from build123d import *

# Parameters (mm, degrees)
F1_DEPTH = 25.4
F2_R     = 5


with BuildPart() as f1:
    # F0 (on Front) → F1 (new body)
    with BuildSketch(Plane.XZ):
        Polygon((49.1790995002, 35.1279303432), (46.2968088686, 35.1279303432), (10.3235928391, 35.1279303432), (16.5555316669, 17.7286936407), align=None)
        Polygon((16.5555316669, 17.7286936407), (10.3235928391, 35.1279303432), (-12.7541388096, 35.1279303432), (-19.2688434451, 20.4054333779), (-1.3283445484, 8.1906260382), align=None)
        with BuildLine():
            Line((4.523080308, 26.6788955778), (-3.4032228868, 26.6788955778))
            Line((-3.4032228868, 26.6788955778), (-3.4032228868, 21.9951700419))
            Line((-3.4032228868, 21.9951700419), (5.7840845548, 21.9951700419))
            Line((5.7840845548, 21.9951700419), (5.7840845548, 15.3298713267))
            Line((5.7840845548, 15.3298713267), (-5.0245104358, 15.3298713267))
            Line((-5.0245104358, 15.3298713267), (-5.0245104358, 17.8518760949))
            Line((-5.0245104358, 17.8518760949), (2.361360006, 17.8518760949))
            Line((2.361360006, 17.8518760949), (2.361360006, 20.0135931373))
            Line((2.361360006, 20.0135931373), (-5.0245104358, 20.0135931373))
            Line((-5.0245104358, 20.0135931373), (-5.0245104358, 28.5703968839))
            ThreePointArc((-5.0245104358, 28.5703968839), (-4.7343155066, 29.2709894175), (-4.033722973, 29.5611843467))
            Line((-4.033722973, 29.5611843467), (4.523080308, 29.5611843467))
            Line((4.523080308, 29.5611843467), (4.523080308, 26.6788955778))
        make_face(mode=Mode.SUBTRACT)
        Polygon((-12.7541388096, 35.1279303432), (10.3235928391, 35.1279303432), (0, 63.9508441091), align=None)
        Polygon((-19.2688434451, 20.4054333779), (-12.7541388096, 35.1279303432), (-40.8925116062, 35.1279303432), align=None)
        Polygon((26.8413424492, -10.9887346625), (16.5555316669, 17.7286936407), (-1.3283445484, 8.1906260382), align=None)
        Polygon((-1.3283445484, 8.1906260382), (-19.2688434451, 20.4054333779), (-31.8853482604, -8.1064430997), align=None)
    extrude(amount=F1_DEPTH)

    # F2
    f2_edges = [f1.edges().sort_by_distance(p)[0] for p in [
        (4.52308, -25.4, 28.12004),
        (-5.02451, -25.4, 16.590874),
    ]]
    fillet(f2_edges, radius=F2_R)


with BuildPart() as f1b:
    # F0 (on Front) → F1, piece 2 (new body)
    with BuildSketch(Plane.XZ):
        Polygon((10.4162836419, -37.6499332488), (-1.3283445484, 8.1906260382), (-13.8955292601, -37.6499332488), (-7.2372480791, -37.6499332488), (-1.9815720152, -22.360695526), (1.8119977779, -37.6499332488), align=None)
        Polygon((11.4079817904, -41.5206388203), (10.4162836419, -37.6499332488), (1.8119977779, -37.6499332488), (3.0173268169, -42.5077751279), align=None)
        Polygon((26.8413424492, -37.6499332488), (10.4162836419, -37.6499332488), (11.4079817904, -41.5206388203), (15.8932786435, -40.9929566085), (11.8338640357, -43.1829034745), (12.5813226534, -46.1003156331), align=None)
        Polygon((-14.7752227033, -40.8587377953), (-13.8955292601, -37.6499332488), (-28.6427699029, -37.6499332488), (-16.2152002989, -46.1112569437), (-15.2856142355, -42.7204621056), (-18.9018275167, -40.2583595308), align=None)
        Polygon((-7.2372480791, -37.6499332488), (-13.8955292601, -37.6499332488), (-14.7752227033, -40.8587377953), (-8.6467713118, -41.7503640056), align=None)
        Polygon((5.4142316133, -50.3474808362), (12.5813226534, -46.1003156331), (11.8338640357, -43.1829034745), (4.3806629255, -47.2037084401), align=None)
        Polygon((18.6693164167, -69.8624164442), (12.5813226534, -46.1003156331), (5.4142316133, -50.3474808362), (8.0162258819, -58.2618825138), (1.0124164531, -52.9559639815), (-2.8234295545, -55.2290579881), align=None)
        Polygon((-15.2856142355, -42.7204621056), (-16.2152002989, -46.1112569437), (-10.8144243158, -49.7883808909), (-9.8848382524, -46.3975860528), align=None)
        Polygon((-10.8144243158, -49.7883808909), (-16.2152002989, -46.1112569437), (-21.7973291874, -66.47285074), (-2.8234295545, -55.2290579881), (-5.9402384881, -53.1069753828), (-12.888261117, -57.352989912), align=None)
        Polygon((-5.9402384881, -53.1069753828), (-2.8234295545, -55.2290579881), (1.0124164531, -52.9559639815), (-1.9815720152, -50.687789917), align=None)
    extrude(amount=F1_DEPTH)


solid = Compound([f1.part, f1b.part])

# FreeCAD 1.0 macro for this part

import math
import FreeCAD as App
import Part
import Sketcher


def edges_at(feature, points):
    """Names of the edges that pass closest to the given points."""
    edges = feature.Shape.Edges
    near = lambda p: min(range(len(edges)), key=lambda i: edges[i].distToShape(Part.Vertex(*p))[0])
    return sorted({f"Edge{near(p) + 1}" for p in points})

doc = App.newDocument("Part")
params = doc.addObject("Spreadsheet::Sheet", "Params")
for row, (alias, value) in enumerate([
    ("pad1_length", "25.4 mm"),
    ("fillet_radius", "5 mm"),
    ("pad2_length", "25.4 mm"),
], start=1):
    params.set(f"A{row}", alias)
    params.set(f"B{row}", "=" + value)
    params.setAlias(f"B{row}", alias)

body = doc.addObject("PartDesign::Body", "Body")

# Sketch on XZ plane
sketch1 = doc.addObject("Sketcher::SketchObject", "Sketch")
body.addObject(sketch1)
sketch1.AttachmentSupport = (doc.XZ_Plane, [""])
sketch1.MapMode = "FlatFace"
sketch1.addGeometry(Part.LineSegment(App.Vector(49.179099, 35.12793, 0), App.Vector(10.323593, 35.12793, 0)), False)
sketch1.addGeometry(Part.LineSegment(App.Vector(10.323593, 35.12793, 0), App.Vector(0, 63.950844, 0)), False)
sketch1.addGeometry(Part.LineSegment(App.Vector(0, 63.950844, 0), App.Vector(-12.754139, 35.12793, 0)), False)
sketch1.addGeometry(Part.LineSegment(App.Vector(-12.754139, 35.12793, 0), App.Vector(-40.892512, 35.12793, 0)), False)
sketch1.addGeometry(Part.LineSegment(App.Vector(-40.892512, 35.12793, 0), App.Vector(-19.268843, 20.405433, 0)), False)
sketch1.addGeometry(Part.LineSegment(App.Vector(-19.268843, 20.405433, 0), App.Vector(-31.885348, -8.106443, 0)), False)
sketch1.addGeometry(Part.LineSegment(App.Vector(-31.885348, -8.106443, 0), App.Vector(-1.328345, 8.190626, 0)), False)
sketch1.addGeometry(Part.LineSegment(App.Vector(-1.328345, 8.190626, 0), App.Vector(26.841342, -10.988735, 0)), False)
sketch1.addGeometry(Part.LineSegment(App.Vector(26.841342, -10.988735, 0), App.Vector(16.555532, 17.728694, 0)), False)
sketch1.addGeometry(Part.LineSegment(App.Vector(16.555532, 17.728694, 0), App.Vector(49.179099, 35.12793, 0)), False)
sketch1.addGeometry(Part.LineSegment(App.Vector(4.52308, 29.561184, 0), App.Vector(4.52308, 26.678896, 0)), False)
sketch1.addGeometry(Part.LineSegment(App.Vector(4.52308, 26.678896, 0), App.Vector(-3.403223, 26.678896, 0)), False)
sketch1.addGeometry(Part.LineSegment(App.Vector(-3.403223, 26.678896, 0), App.Vector(-3.403223, 21.99517, 0)), False)
sketch1.addGeometry(Part.LineSegment(App.Vector(-3.403223, 21.99517, 0), App.Vector(5.784085, 21.99517, 0)), False)
sketch1.addGeometry(Part.LineSegment(App.Vector(5.784085, 21.99517, 0), App.Vector(5.784085, 15.329871, 0)), False)
sketch1.addGeometry(Part.LineSegment(App.Vector(5.784085, 15.329871, 0), App.Vector(-5.02451, 15.329871, 0)), False)
sketch1.addGeometry(Part.LineSegment(App.Vector(-5.02451, 15.329871, 0), App.Vector(-5.02451, 17.851876, 0)), False)
sketch1.addGeometry(Part.LineSegment(App.Vector(-5.02451, 17.851876, 0), App.Vector(2.36136, 17.851876, 0)), False)
sketch1.addGeometry(Part.LineSegment(App.Vector(2.36136, 17.851876, 0), App.Vector(2.36136, 20.013593, 0)), False)
sketch1.addGeometry(Part.LineSegment(App.Vector(2.36136, 20.013593, 0), App.Vector(-5.02451, 20.013593, 0)), False)
sketch1.addGeometry(Part.LineSegment(App.Vector(-5.02451, 20.013593, 0), App.Vector(-5.02451, 28.570397, 0)), False)
sketch1.addGeometry(Part.ArcOfCircle(Part.Circle(App.Vector(-4.033723, 28.570397, 0), App.Vector(0, 0, 1), 0.990787), math.radians(90), math.radians(180)), False)
sketch1.addGeometry(Part.LineSegment(App.Vector(-4.033723, 29.561184, 0), App.Vector(4.52308, 29.561184, 0)), False)
sketch1.addConstraint(Sketcher.Constraint("Coincident", 0, 2, 1, 1))
sketch1.addConstraint(Sketcher.Constraint("Coincident", 1, 2, 2, 1))
sketch1.addConstraint(Sketcher.Constraint("Coincident", 2, 2, 3, 1))
sketch1.addConstraint(Sketcher.Constraint("Coincident", 3, 2, 4, 1))
sketch1.addConstraint(Sketcher.Constraint("Coincident", 4, 2, 5, 1))
sketch1.addConstraint(Sketcher.Constraint("Coincident", 5, 2, 6, 1))
sketch1.addConstraint(Sketcher.Constraint("Coincident", 6, 2, 7, 1))
sketch1.addConstraint(Sketcher.Constraint("Coincident", 7, 2, 8, 1))
sketch1.addConstraint(Sketcher.Constraint("Coincident", 8, 2, 9, 1))
sketch1.addConstraint(Sketcher.Constraint("Coincident", 9, 2, 0, 1))
sketch1.addConstraint(Sketcher.Constraint("Coincident", 10, 2, 11, 1))
sketch1.addConstraint(Sketcher.Constraint("Coincident", 11, 2, 12, 1))
sketch1.addConstraint(Sketcher.Constraint("Coincident", 12, 2, 13, 1))
sketch1.addConstraint(Sketcher.Constraint("Coincident", 13, 2, 14, 1))
sketch1.addConstraint(Sketcher.Constraint("Coincident", 14, 2, 15, 1))
sketch1.addConstraint(Sketcher.Constraint("Coincident", 15, 2, 16, 1))
sketch1.addConstraint(Sketcher.Constraint("Coincident", 16, 2, 17, 1))
sketch1.addConstraint(Sketcher.Constraint("Coincident", 17, 2, 18, 1))
sketch1.addConstraint(Sketcher.Constraint("Coincident", 18, 2, 19, 1))
sketch1.addConstraint(Sketcher.Constraint("Coincident", 19, 2, 20, 1))
sketch1.addConstraint(Sketcher.Constraint("Tangent", 20, 2, 21, 2))
sketch1.addConstraint(Sketcher.Constraint("Tangent", 21, 1, 22, 1))
sketch1.addConstraint(Sketcher.Constraint("Coincident", 22, 2, 10, 1))
sketch1.addConstraint(Sketcher.Constraint("Horizontal", 0))
sketch1.addConstraint(Sketcher.Constraint("Horizontal", 3))
sketch1.addConstraint(Sketcher.Constraint("Vertical", 10))
sketch1.addConstraint(Sketcher.Constraint("Horizontal", 11))
sketch1.addConstraint(Sketcher.Constraint("Vertical", 12))
sketch1.addConstraint(Sketcher.Constraint("Horizontal", 13))
sketch1.addConstraint(Sketcher.Constraint("Vertical", 14))
sketch1.addConstraint(Sketcher.Constraint("Horizontal", 15))
sketch1.addConstraint(Sketcher.Constraint("Vertical", 16))
sketch1.addConstraint(Sketcher.Constraint("Horizontal", 17))
sketch1.addConstraint(Sketcher.Constraint("Vertical", 18))
sketch1.addConstraint(Sketcher.Constraint("Horizontal", 19))
sketch1.addConstraint(Sketcher.Constraint("Vertical", 20))
sketch1.addConstraint(Sketcher.Constraint("Horizontal", 22))
sketch1.addConstraint(Sketcher.Constraint("PointOnObject", 1, 2, -2))
sketch1.addConstraint(Sketcher.Constraint("Parallel", 2, 5))
sketch1.addConstraint(Sketcher.Constraint("Parallel", 4, 7))
sketch1.addConstraint(Sketcher.Constraint("Parallel", 1, 8))
sketch1.addConstraint(Sketcher.Constraint("Parallel", 6, 9))
sketch1.addConstraint(Sketcher.Constraint("Horizontal", 0, 2, 2, 2))
sketch1.addConstraint(Sketcher.Constraint("Vertical", 16, 2, 19, 2))
sketch1.addConstraint(Sketcher.Constraint("Equal", 22, 20))
sketch1.addConstraint(Sketcher.Constraint("DistanceY", 14, 2, 14, 1, 6.665299))
sketch1.addConstraint(Sketcher.Constraint("Radius", 21, 0.990787))
sketch1.addConstraint(Sketcher.Constraint("Distance", 2, 31.518699))
sketch1.addConstraint(Sketcher.Constraint("DistanceX", 17, 1, 17, 2, 7.38587))
sketch1.addConstraint(Sketcher.Constraint("DistanceY", 10, 2, 10, 1, 2.882289))
sketch1.addConstraint(Sketcher.Constraint("DistanceX", -1, 1, 9, 2, 49.179099))
sketch1.addConstraint(Sketcher.Constraint("DistanceX", 4, 2, 6, 2, 17.940499))
sketch1.addConstraint(Sketcher.Constraint("DistanceY", 8, 2, 10, 2, 8.950202))
sketch1.addConstraint(Sketcher.Constraint("DistanceX", 21, 3, 11, 2, 0.6305))
sketch1.addConstraint(Sketcher.Constraint("Distance", 1, 30.615959))
sketch1.addConstraint(Sketcher.Constraint("Distance", 5, 31.178571))
sketch1.addConstraint(Sketcher.Constraint("Distance", 6, 34.631271))
sketch1.addConstraint(Sketcher.Constraint("Distance", 8, 30.503911))
sketch1.addConstraint(Sketcher.Constraint("DistanceX", 0, 2, 0, 1, 38.855507))
sketch1.addConstraint(Sketcher.Constraint("DistanceX", 3, 2, 3, 1, 28.138373))
sketch1.addConstraint(Sketcher.Constraint("DistanceX", 11, 2, 11, 1, 7.926303))
sketch1.addConstraint(Sketcher.Constraint("DistanceX", 13, 1, 13, 2, 9.187307))
sketch1.addConstraint(Sketcher.Constraint("DistanceY", 12, 2, 12, 1, 4.683726))
sketch1.addConstraint(Sketcher.Constraint("DistanceY", 16, 1, 16, 2, 2.522005))
sketch1.addConstraint(Sketcher.Constraint("DistanceY", -1, 1, 0, 2, 35.12793))
sketch1.addConstraint(Sketcher.Constraint("DistanceX", 5, 2, -1, 1, 31.885348))
sketch1.addConstraint(Sketcher.Constraint("DistanceX", -1, 1, 8, 2, 16.555532))
sketch1.addConstraint(Sketcher.Constraint("DistanceX", -1, 1, 10, 2, 4.52308))
pad1 = doc.addObject("PartDesign::Pad", "Pad")
body.addObject(pad1)
pad1.Profile = sketch1
pad1.setExpression("Length", "Params.pad1_length")
doc.recompute()

fillet = doc.addObject("PartDesign::Fillet", "Fillet")
body.addObject(fillet)
fillet.Base = (pad1, edges_at(pad1, [(4.523, -25.4, 28.12), (-5.025, -25.4, 16.591)]))
fillet.setExpression("Radius", "Params.fillet_radius")
body2 = doc.addObject("PartDesign::Body", "Body001")

# Sketch on XZ plane
sketch2 = doc.addObject("Sketcher::SketchObject", "Sketch001")
body2.addObject(sketch2)
sketch2.AttachmentSupport = (doc.getObject("XZ_Plane001"), [""])
sketch2.MapMode = "FlatFace"
sketch2.addGeometry(Part.LineSegment(App.Vector(-21.797329, -66.472851, 0), App.Vector(-2.82343, -55.229058, 0)), False)
sketch2.addGeometry(Part.LineSegment(App.Vector(-2.82343, -55.229058, 0), App.Vector(18.669316, -69.862416, 0)), False)
sketch2.addGeometry(Part.LineSegment(App.Vector(18.669316, -69.862416, 0), App.Vector(12.581323, -46.100316, 0)), False)
sketch2.addGeometry(Part.LineSegment(App.Vector(12.581323, -46.100316, 0), App.Vector(26.841342, -37.649933, 0)), False)
sketch2.addGeometry(Part.LineSegment(App.Vector(26.841342, -37.649933, 0), App.Vector(10.416284, -37.649933, 0)), False)
sketch2.addGeometry(Part.LineSegment(App.Vector(10.416284, -37.649933, 0), App.Vector(-1.328345, 8.190626, 0)), False)
sketch2.addGeometry(Part.LineSegment(App.Vector(-1.328345, 8.190626, 0), App.Vector(-13.895529, -37.649933, 0)), False)
sketch2.addGeometry(Part.LineSegment(App.Vector(-13.895529, -37.649933, 0), App.Vector(-28.64277, -37.649933, 0)), False)
sketch2.addGeometry(Part.LineSegment(App.Vector(-28.64277, -37.649933, 0), App.Vector(-16.2152, -46.111257, 0)), False)
sketch2.addGeometry(Part.LineSegment(App.Vector(-16.2152, -46.111257, 0), App.Vector(-21.797329, -66.472851, 0)), False)
sketch2.addGeometry(Part.LineSegment(App.Vector(8.016226, -58.261883, 0), App.Vector(1.012416, -52.955964, 0)), False)
sketch2.addGeometry(Part.LineSegment(App.Vector(1.012416, -52.955964, 0), App.Vector(-1.981572, -50.68779, 0)), False)
sketch2.addGeometry(Part.LineSegment(App.Vector(-1.981572, -50.68779, 0), App.Vector(-5.940238, -53.106975, 0)), False)
sketch2.addGeometry(Part.LineSegment(App.Vector(-5.940238, -53.106975, 0), App.Vector(-12.888261, -57.35299, 0)), False)
sketch2.addGeometry(Part.LineSegment(App.Vector(-12.888261, -57.35299, 0), App.Vector(-10.814424, -49.788381, 0)), False)
sketch2.addGeometry(Part.LineSegment(App.Vector(-10.814424, -49.788381, 0), App.Vector(-9.884838, -46.397586, 0)), False)
sketch2.addGeometry(Part.LineSegment(App.Vector(-9.884838, -46.397586, 0), App.Vector(-15.285614, -42.720462, 0)), False)
sketch2.addGeometry(Part.LineSegment(App.Vector(-15.285614, -42.720462, 0), App.Vector(-18.901828, -40.25836, 0)), False)
sketch2.addGeometry(Part.LineSegment(App.Vector(-18.901828, -40.25836, 0), App.Vector(-14.775223, -40.858738, 0)), False)
sketch2.addGeometry(Part.LineSegment(App.Vector(-14.775223, -40.858738, 0), App.Vector(-8.646771, -41.750364, 0)), False)
sketch2.addGeometry(Part.LineSegment(App.Vector(-8.646771, -41.750364, 0), App.Vector(-7.237248, -37.649933, 0)), False)
sketch2.addGeometry(Part.LineSegment(App.Vector(-7.237248, -37.649933, 0), App.Vector(-1.981572, -22.360696, 0)), False)
sketch2.addGeometry(Part.LineSegment(App.Vector(-1.981572, -22.360696, 0), App.Vector(1.811998, -37.649933, 0)), False)
sketch2.addGeometry(Part.LineSegment(App.Vector(1.811998, -37.649933, 0), App.Vector(3.017327, -42.507775, 0)), False)
sketch2.addGeometry(Part.LineSegment(App.Vector(3.017327, -42.507775, 0), App.Vector(11.407982, -41.520639, 0)), False)
sketch2.addGeometry(Part.LineSegment(App.Vector(11.407982, -41.520639, 0), App.Vector(15.893279, -40.992957, 0)), False)
sketch2.addGeometry(Part.LineSegment(App.Vector(15.893279, -40.992957, 0), App.Vector(11.833864, -43.182903, 0)), False)
sketch2.addGeometry(Part.LineSegment(App.Vector(11.833864, -43.182903, 0), App.Vector(4.380663, -47.203708, 0)), False)
sketch2.addGeometry(Part.LineSegment(App.Vector(4.380663, -47.203708, 0), App.Vector(5.414232, -50.347481, 0)), False)
sketch2.addGeometry(Part.LineSegment(App.Vector(5.414232, -50.347481, 0), App.Vector(8.016226, -58.261883, 0)), False)
sketch2.addConstraint(Sketcher.Constraint("Coincident", 0, 2, 1, 1))
sketch2.addConstraint(Sketcher.Constraint("Coincident", 1, 2, 2, 1))
sketch2.addConstraint(Sketcher.Constraint("Coincident", 2, 2, 3, 1))
sketch2.addConstraint(Sketcher.Constraint("Coincident", 3, 2, 4, 1))
sketch2.addConstraint(Sketcher.Constraint("Coincident", 4, 2, 5, 1))
sketch2.addConstraint(Sketcher.Constraint("Coincident", 5, 2, 6, 1))
sketch2.addConstraint(Sketcher.Constraint("Coincident", 6, 2, 7, 1))
sketch2.addConstraint(Sketcher.Constraint("Coincident", 7, 2, 8, 1))
sketch2.addConstraint(Sketcher.Constraint("Coincident", 8, 2, 9, 1))
sketch2.addConstraint(Sketcher.Constraint("Coincident", 9, 2, 0, 1))
sketch2.addConstraint(Sketcher.Constraint("Coincident", 10, 2, 11, 1))
sketch2.addConstraint(Sketcher.Constraint("Coincident", 11, 2, 12, 1))
sketch2.addConstraint(Sketcher.Constraint("Coincident", 12, 2, 13, 1))
sketch2.addConstraint(Sketcher.Constraint("Coincident", 13, 2, 14, 1))
sketch2.addConstraint(Sketcher.Constraint("Coincident", 14, 2, 15, 1))
sketch2.addConstraint(Sketcher.Constraint("Coincident", 15, 2, 16, 1))
sketch2.addConstraint(Sketcher.Constraint("Coincident", 16, 2, 17, 1))
sketch2.addConstraint(Sketcher.Constraint("Coincident", 17, 2, 18, 1))
sketch2.addConstraint(Sketcher.Constraint("Coincident", 18, 2, 19, 1))
sketch2.addConstraint(Sketcher.Constraint("Coincident", 19, 2, 20, 1))
sketch2.addConstraint(Sketcher.Constraint("Coincident", 20, 2, 21, 1))
sketch2.addConstraint(Sketcher.Constraint("Coincident", 21, 2, 22, 1))
sketch2.addConstraint(Sketcher.Constraint("Coincident", 22, 2, 23, 1))
sketch2.addConstraint(Sketcher.Constraint("Coincident", 23, 2, 24, 1))
sketch2.addConstraint(Sketcher.Constraint("Coincident", 24, 2, 25, 1))
sketch2.addConstraint(Sketcher.Constraint("Coincident", 25, 2, 26, 1))
sketch2.addConstraint(Sketcher.Constraint("Coincident", 26, 2, 27, 1))
sketch2.addConstraint(Sketcher.Constraint("Coincident", 27, 2, 28, 1))
sketch2.addConstraint(Sketcher.Constraint("Coincident", 28, 2, 29, 1))
sketch2.addConstraint(Sketcher.Constraint("Coincident", 29, 2, 10, 1))
sketch2.addConstraint(Sketcher.Constraint("Horizontal", 4))
sketch2.addConstraint(Sketcher.Constraint("Horizontal", 7))
sketch2.addConstraint(Sketcher.Constraint("Parallel", 0, 3))
sketch2.addConstraint(Sketcher.Constraint("Parallel", 2, 5))
sketch2.addConstraint(Sketcher.Constraint("Parallel", 1, 8))
sketch2.addConstraint(Sketcher.Constraint("Parallel", 6, 9))
sketch2.addConstraint(Sketcher.Constraint("Parallel", 10, 11))
sketch2.addConstraint(Sketcher.Constraint("Parallel", 12, 13))
sketch2.addConstraint(Sketcher.Constraint("Parallel", 9, 14))
sketch2.addConstraint(Sketcher.Constraint("Parallel", 14, 15))
sketch2.addConstraint(Sketcher.Constraint("Parallel", 8, 16))
sketch2.addConstraint(Sketcher.Constraint("Parallel", 16, 17))
sketch2.addConstraint(Sketcher.Constraint("Parallel", 18, 19))
sketch2.addConstraint(Sketcher.Constraint("Parallel", 20, 21))
sketch2.addConstraint(Sketcher.Constraint("Parallel", 22, 23))
sketch2.addConstraint(Sketcher.Constraint("Parallel", 24, 25))
sketch2.addConstraint(Sketcher.Constraint("Parallel", 26, 27))
sketch2.addConstraint(Sketcher.Constraint("Parallel", 28, 29))
sketch2.addConstraint(Sketcher.Constraint("Horizontal", 4, 2, 6, 2))
sketch2.addConstraint(Sketcher.Constraint("Horizontal", 7, 2, 20, 2))
sketch2.addConstraint(Sketcher.Constraint("Horizontal", 20, 2, 22, 2))
sketch2.addConstraint(Sketcher.Constraint("Vertical", 11, 2, 21, 2))
sketch2.addConstraint(Sketcher.Constraint("Distance", 6, 47.532))
sketch2.addConstraint(Sketcher.Constraint("Distance", 3, 16.575799))
sketch2.addConstraint(Sketcher.Constraint("Distance", 10, 8.786701))
sketch2.addConstraint(Sketcher.Constraint("DistanceX", 4, 2, 4, 1, 16.425059))
sketch2.addConstraint(Sketcher.Constraint("DistanceX", 7, 2, 7, 1, 14.747241))
sketch2.addConstraint(Sketcher.Constraint("DistanceX", 8, 2, -1, 1, 16.2152))
sketch2.addConstraint(Sketcher.Constraint("DistanceY", 1, 2, 2, 2, 23.762101))
sketch2.addConstraint(Sketcher.Constraint("DistanceX", 6, 2, 0, 2, 11.0721))
sketch2.addConstraint(Sketcher.Constraint("DistanceY", 0, 2, 8, 2, 9.117801))
sketch2.addConstraint(Sketcher.Constraint("DistanceX", 9, 2, 0, 2, 18.9739))
sketch2.addConstraint(Sketcher.Constraint("DistanceY", 13, 2, 11, 2, 6.6652))
sketch2.addConstraint(Sketcher.Constraint("DistanceX", 15, 2, 12, 2, 3.9446))
sketch2.addConstraint(Sketcher.Constraint("DistanceX", 17, 2, 6, 2, 5.006298))
sketch2.addConstraint(Sketcher.Constraint("DistanceY", 16, 2, 19, 2, 0.970098))
sketch2.addConstraint(Sketcher.Constraint("DistanceX", 19, 2, 21, 2, 6.665199))
sketch2.addConstraint(Sketcher.Constraint("DistanceX", 11, 2, 23, 2, 4.998899))
sketch2.addConstraint(Sketcher.Constraint("DistanceX", 4, 2, 24, 2, 0.991698))
sketch2.addConstraint(Sketcher.Constraint("DistanceX", 27, 2, 26, 2, 7.453201))
sketch2.addConstraint(Sketcher.Constraint("DistanceY", 29, 2, 28, 2, 7.914402))
sketch2.addConstraint(Sketcher.Constraint("Distance", 1, 26.00141))
sketch2.addConstraint(Sketcher.Constraint("Distance", 5, 47.32117))
sketch2.addConstraint(Sketcher.Constraint("Distance", 11, 3.756139))
sketch2.addConstraint(Sketcher.Constraint("Distance", 14, 7.843731))
sketch2.addConstraint(Sketcher.Constraint("Distance", 15, 3.51591))
sketch2.addConstraint(Sketcher.Constraint("Distance", 16, 6.53373))
sketch2.addConstraint(Sketcher.Constraint("Distance", 17, 4.374808))
sketch2.addConstraint(Sketcher.Constraint("Distance", 18, 4.170051))
sketch2.addConstraint(Sketcher.Constraint("Distance", 20, 4.33593))
sketch2.addConstraint(Sketcher.Constraint("Distance", 21, 16.167341))
sketch2.addConstraint(Sketcher.Constraint("Distance", 22, 15.75284))
sketch2.addConstraint(Sketcher.Constraint("Distance", 25, 4.51623))
sketch2.addConstraint(Sketcher.Constraint("DistanceX", 0, 2, -1, 1, 2.82343))
sketch2.addConstraint(Sketcher.Constraint("DistanceY", 9, 2, -1, 1, 66.472851))
sketch2.addConstraint(Sketcher.Constraint("DistanceX", 19, 2, -1, 1, 8.646771))
sketch2.addConstraint(Sketcher.Constraint("DistanceY", 24, 2, -1, 1, 41.520639))
sketch2.addConstraint(Sketcher.Constraint("DistanceY", 27, 2, -1, 1, 47.203708))
sketch2.addConstraint(Sketcher.Constraint("DistanceX", -1, 1, 28, 2, 5.414232))
sketch2.addConstraint(Sketcher.Constraint("DistanceY", 28, 2, -1, 1, 50.347481))
pad2 = doc.addObject("PartDesign::Pad", "Pad001")
body2.addObject(pad2)
pad2.Profile = sketch2
pad2.setExpression("Length", "Params.pad2_length")

doc.recompute()
